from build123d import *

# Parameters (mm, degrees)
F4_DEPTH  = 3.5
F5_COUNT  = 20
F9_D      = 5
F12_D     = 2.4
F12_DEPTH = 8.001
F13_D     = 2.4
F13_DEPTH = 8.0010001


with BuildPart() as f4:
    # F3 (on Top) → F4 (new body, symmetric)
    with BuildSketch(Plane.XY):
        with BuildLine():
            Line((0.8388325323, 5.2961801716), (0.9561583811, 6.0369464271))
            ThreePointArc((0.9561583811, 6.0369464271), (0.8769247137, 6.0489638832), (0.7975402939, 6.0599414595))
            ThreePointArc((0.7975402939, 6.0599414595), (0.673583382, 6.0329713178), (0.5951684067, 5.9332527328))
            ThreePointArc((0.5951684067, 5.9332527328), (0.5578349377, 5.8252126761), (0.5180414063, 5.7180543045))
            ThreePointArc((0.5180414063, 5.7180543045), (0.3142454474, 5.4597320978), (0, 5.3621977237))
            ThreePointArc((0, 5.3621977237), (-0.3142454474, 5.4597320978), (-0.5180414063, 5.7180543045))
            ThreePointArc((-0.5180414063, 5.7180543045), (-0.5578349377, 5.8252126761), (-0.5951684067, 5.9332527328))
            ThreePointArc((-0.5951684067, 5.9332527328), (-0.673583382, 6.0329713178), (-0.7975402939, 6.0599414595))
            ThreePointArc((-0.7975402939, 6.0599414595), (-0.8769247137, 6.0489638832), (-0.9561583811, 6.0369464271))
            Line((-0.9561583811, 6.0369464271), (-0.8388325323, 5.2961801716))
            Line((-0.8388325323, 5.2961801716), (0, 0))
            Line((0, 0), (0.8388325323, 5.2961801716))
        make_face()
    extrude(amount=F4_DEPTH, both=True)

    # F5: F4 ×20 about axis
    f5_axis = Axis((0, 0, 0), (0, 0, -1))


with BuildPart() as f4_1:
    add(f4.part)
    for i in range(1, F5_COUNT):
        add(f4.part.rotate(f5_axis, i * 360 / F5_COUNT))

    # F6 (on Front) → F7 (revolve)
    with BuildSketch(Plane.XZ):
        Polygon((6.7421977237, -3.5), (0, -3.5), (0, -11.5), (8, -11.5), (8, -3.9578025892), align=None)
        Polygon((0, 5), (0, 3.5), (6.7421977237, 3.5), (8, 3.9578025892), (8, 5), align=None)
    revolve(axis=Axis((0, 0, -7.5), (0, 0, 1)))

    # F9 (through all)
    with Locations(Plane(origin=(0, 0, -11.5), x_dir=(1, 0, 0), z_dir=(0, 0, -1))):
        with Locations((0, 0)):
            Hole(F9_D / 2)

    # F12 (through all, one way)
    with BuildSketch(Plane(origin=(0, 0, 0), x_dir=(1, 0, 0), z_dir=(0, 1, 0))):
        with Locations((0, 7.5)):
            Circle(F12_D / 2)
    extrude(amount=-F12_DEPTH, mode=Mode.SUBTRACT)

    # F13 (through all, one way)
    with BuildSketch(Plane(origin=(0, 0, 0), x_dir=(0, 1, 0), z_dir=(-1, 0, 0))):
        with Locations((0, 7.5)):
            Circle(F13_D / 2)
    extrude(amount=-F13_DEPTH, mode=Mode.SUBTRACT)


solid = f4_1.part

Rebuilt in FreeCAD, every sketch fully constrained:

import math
import FreeCAD as App
import Part
import Sketcher
Q = App.Units.Quantity


def add_polygon(sketch, points):
    """Adds a closed chain of lines whose ends are joined by coincident constraints."""
    first, n = sketch.GeometryCount, len(points)
    for a, b in zip(points, points[1:] + points[:1]):
        sketch.addGeometry(Part.LineSegment(App.Vector(*a, 0), App.Vector(*b, 0)), False)
    for i in range(n):
        sketch.addConstraint(Sketcher.Constraint("Coincident", first + i, 2, first + (i + 1) % n, 1))

doc = App.newDocument("Part")
body = doc.addObject("PartDesign::Body", "Body")

sketch1 = body.newObject("Sketcher::SketchObject", "Sketch")
sketch1.AttachmentSupport = (doc.getObject("XY_Plane"), [""])
sketch1.MapMode = "FlatFace"
sketch1.addGeometry([
    Part.LineSegment(App.Vector(0.84, 5.3, 0), App.Vector(0.96, 6.04, 0)),
    Part.ArcOfCircle(Part.Circle(App.Vector(0, 0, 0), App.Vector(0, 0, 1), 6.11), math.radians(81), math.radians(82.5)),
    Part.ArcOfCircle(Part.Circle(App.Vector(0.77, 5.87, 0), App.Vector(0, 0, 1), 0.19), math.radians(83), math.radians(162)),
    Part.ArcOfCircle(Part.Circle(App.Vector(-4.15, 7.51, 0), App.Vector(0, 0, 1), 5), math.radians(-21.03), math.radians(-18.41)),
    Part.ArcOfCircle(Part.Circle(App.Vector(0, 5.92, 0), App.Vector(0, 0, 1), 0.56), math.radians(-90), math.radians(-21)),
    Part.ArcOfCircle(Part.Circle(App.Vector(0, 5.92, 0), App.Vector(0, 0, 1), 0.56), math.radians(-159), math.radians(-90)),
    Part.ArcOfCircle(Part.Circle(App.Vector(4.15, 7.51, 0), App.Vector(0, 0, 1), 5), math.radians(-161.59), math.radians(-158.97)),
    Part.ArcOfCircle(Part.Circle(App.Vector(-0.77, 5.87, 0), App.Vector(0, 0, 1), 0.19), math.radians(18), math.radians(97)),
    Part.ArcOfCircle(Part.Circle(App.Vector(0, 0, 0), App.Vector(0, 0, 1), 6.11), math.radians(97.5), math.radians(99)),
    Part.LineSegment(App.Vector(-0.96, 6.04, 0), App.Vector(-0.84, 5.3, 0)),
    Part.LineSegment(App.Vector(-0.84, 5.3, 0), App.Vector(0, 0, 0)),
    Part.LineSegment(App.Vector(0, 0, 0), App.Vector(0.84, 5.3, 0)),
], False)
sketch1.addConstraint([
    Sketcher.Constraint("Coincident", 0, 2, 1, 1),
    Sketcher.Constraint("Tangent", 1, 2, 2, 1),
    Sketcher.Constraint("Tangent", 2, 2, 3, 2),
    Sketcher.Constraint("Tangent", 3, 1, 4, 2),
    Sketcher.Constraint("Tangent", 4, 1, 5, 2),
    Sketcher.Constraint("Tangent", 5, 1, 6, 2),
    Sketcher.Constraint("Tangent", 6, 1, 7, 1),
    Sketcher.Constraint("Tangent", 7, 2, 8, 1),
    Sketcher.Constraint("Coincident", 8, 2, 9, 1),
    Sketcher.Constraint("Coincident", 9, 2, 10, 1),
    Sketcher.Constraint("Coincident", 10, 2, 11, 1),
    Sketcher.Constraint("Coincident", 11, 2, 0, 1),
    Sketcher.Constraint("Coincident", 1, 3, -1, 1),
    Sketcher.Constraint("Coincident", 8, 3, -1, 1),
    Sketcher.Constraint("Coincident", 10, 2, -1, 1),
    Sketcher.Constraint("Equal", 4, 5),
    Sketcher.Constraint("Equal", 3, 6),
    Sketcher.Constraint("Equal", 2, 7),
    Sketcher.Constraint("Equal", 1, 8),
    Sketcher.Constraint("Symmetric", 3, 3, 6, 3, -2),
    Sketcher.Constraint("Symmetric", 9, 2, 11, 2, -2),
    Sketcher.Constraint("PointOnObject", 4, 1, -2),
    Sketcher.Constraint("Parallel", 9, 10),
    Sketcher.Constraint("Parallel", 0, 11),
    Sketcher.Constraint("Radius", 3, Q("5 mm")),
    Sketcher.Constraint("Angle", 0, Q("81 deg")),
    Sketcher.Constraint("Radius", 4, Q("0.555 mm")),
    Sketcher.Constraint("Radius", 2, Q("0.1875 mm")),
    Sketcher.Constraint("Distance", 0, Q("0.75 mm")),
    Sketcher.Constraint("DistanceX", 3, 3, -1, 1, Q("4.148998 mm")),
    Sketcher.Constraint("Radius", 1, Q("6.112197 mm")),
    Sketcher.Constraint("DistanceY", 2, 3, 0, 2, Q("0.162902 mm")),
])
pad1 = body.newObject("PartDesign::Pad", "Pad")
pad1.Profile = sketch1
pad1.Length = 7
pad1.Midplane = True
body2 = doc.addObject("PartDesign::Body", "Body001")
doc.recompute()

body2.BaseFeature = body
doc.recompute()

body3 = doc.addObject("PartDesign::Body", "Body002")
body3.BaseFeature = body
body3.Placement = App.Placement(App.Vector(0, 0, 0), App.Rotation(App.Vector(0, 0, -1), 18))
boolean = body2.newObject("PartDesign::Boolean", "Boolean")
boolean.Type = "Fuse"
boolean.addObjects([body3])
doc.recompute()

body4 = doc.addObject("PartDesign::Body", "Body003")
body4.BaseFeature = body
body4.Placement = App.Placement(App.Vector(0, 0, 0), App.Rotation(App.Vector(0, 0, -1), 36))
boolean2 = body2.newObject("PartDesign::Boolean", "Boolean001")
boolean2.Type = "Fuse"
boolean2.addObjects([body4])
doc.recompute()

body5 = doc.addObject("PartDesign::Body", "Body004")
body5.BaseFeature = body
body5.Placement = App.Placement(App.Vector(0, 0, 0), App.Rotation(App.Vector(0, 0, -1), 54))
boolean3 = body2.newObject("PartDesign::Boolean", "Boolean002")
boolean3.Type = "Fuse"
boolean3.addObjects([body5])
doc.recompute()

body6 = doc.addObject("PartDesign::Body", "Body005")
body6.BaseFeature = body
body6.Placement = App.Placement(App.Vector(0, 0, 0), App.Rotation(App.Vector(0, 0, -1), 72))
boolean4 = body2.newObject("PartDesign::Boolean", "Boolean003")
boolean4.Type = "Fuse"
boolean4.addObjects([body6])
doc.recompute()

body7 = doc.addObject("PartDesign::Body", "Body006")
body7.BaseFeature = body
body7.Placement = App.Placement(App.Vector(0, 0, 0), App.Rotation(App.Vector(0, 0, -1), 90))
boolean5 = body2.newObject("PartDesign::Boolean", "Boolean004")
boolean5.Type = "Fuse"
boolean5.addObjects([body7])
doc.recompute()

body8 = doc.addObject("PartDesign::Body", "Body007")
body8.BaseFeature = body
body8.Placement = App.Placement(App.Vector(0, 0, 0), App.Rotation(App.Vector(0, 0, -1), 108))
boolean6 = body2.newObject("PartDesign::Boolean", "Boolean005")
boolean6.Type = "Fuse"
boolean6.addObjects([body8])
doc.recompute()

body9 = doc.addObject("PartDesign::Body", "Body008")
body9.BaseFeature = body
body9.Placement = App.Placement(App.Vector(0, 0, 0), App.Rotation(App.Vector(0, 0, -1), 126))
boolean7 = body2.newObject("PartDesign::Boolean", "Boolean006")
boolean7.Type = "Fuse"
boolean7.addObjects([body9])
doc.recompute()

body10 = doc.addObject("PartDesign::Body", "Body009")
body10.BaseFeature = body
body10.Placement = App.Placement(App.Vector(0, 0, 0), App.Rotation(App.Vector(0, 0, -1), 144))
boolean8 = body2.newObject("PartDesign::Boolean", "Boolean007")
boolean8.Type = "Fuse"
boolean8.addObjects([body10])
doc.recompute()

body11 = doc.addObject("PartDesign::Body", "Body010")
body11.BaseFeature = body
body11.Placement = App.Placement(App.Vector(0, 0, 0), App.Rotation(App.Vector(0, 0, -1), 162))
boolean9 = body2.newObject("PartDesign::Boolean", "Boolean008")
boolean9.Type = "Fuse"
boolean9.addObjects([body11])
doc.recompute()

body12 = doc.addObject("PartDesign::Body", "Body011")
body12.BaseFeature = body
body12.Placement = App.Placement(App.Vector(0, 0, 0), App.Rotation(App.Vector(0, 0, -1), 180))
boolean10 = body2.newObject("PartDesign::Boolean", "Boolean009")
boolean10.Type = "Fuse"
boolean10.addObjects([body12])
doc.recompute()

body13 = doc.addObject("PartDesign::Body", "Body012")
body13.BaseFeature = body
body13.Placement = App.Placement(App.Vector(0, 0, 0), App.Rotation(App.Vector(0, 0, -1), 198))
boolean11 = body2.newObject("PartDesign::Boolean", "Boolean010")
boolean11.Type = "Fuse"
boolean11.addObjects([body13])
doc.recompute()

body14 = doc.addObject("PartDesign::Body", "Body013")
body14.BaseFeature = body
body14.Placement = App.Placement(App.Vector(0, 0, 0), App.Rotation(App.Vector(0, 0, -1), 216))
boolean12 = body2.newObject("PartDesign::Boolean", "Boolean011")
boolean12.Type = "Fuse"
boolean12.addObjects([body14])
doc.recompute()

body15 = doc.addObject("PartDesign::Body", "Body014")
body15.BaseFeature = body
body15.Placement = App.Placement(App.Vector(0, 0, 0), App.Rotation(App.Vector(0, 0, -1), 234))
boolean13 = body2.newObject("PartDesign::Boolean", "Boolean012")
boolean13.Type = "Fuse"
boolean13.addObjects([body15])
doc.recompute()

body16 = doc.addObject("PartDesign::Body", "Body015")
body16.BaseFeature = body
body16.Placement = App.Placement(App.Vector(0, 0, 0), App.Rotation(App.Vector(0, 0, -1), 252))
boolean14 = body2.newObject("PartDesign::Boolean", "Boolean013")
boolean14.Type = "Fuse"
boolean14.addObjects([body16])
doc.recompute()

body17 = doc.addObject("PartDesign::Body", "Body016")
body17.BaseFeature = body
body17.Placement = App.Placement(App.Vector(0, 0, 0), App.Rotation(App.Vector(0, 0, -1), 270))
boolean15 = body2.newObject("PartDesign::Boolean", "Boolean014")
boolean15.Type = "Fuse"
boolean15.addObjects([body17])
doc.recompute()

body18 = doc.addObject("PartDesign::Body", "Body017")
body18.BaseFeature = body
body18.Placement = App.Placement(App.Vector(0, 0, 0), App.Rotation(App.Vector(0, 0, -1), 288))
boolean16 = body2.newObject("PartDesign::Boolean", "Boolean015")
boolean16.Type = "Fuse"
boolean16.addObjects([body18])
doc.recompute()

body19 = doc.addObject("PartDesign::Body", "Body018")
body19.BaseFeature = body
body19.Placement = App.Placement(App.Vector(0, 0, 0), App.Rotation(App.Vector(0, 0, -1), 306))
boolean17 = body2.newObject("PartDesign::Boolean", "Boolean016")
boolean17.Type = "Fuse"
boolean17.addObjects([body19])
doc.recompute()

body20 = doc.addObject("PartDesign::Body", "Body019")
body20.BaseFeature = body
body20.Placement = App.Placement(App.Vector(0, 0, 0), App.Rotation(App.Vector(0, 0, -1), 324))
boolean18 = body2.newObject("PartDesign::Boolean", "Boolean017")
boolean18.Type = "Fuse"
boolean18.addObjects([body20])
doc.recompute()

body.Placement = App.Placement(App.Vector(0, 0, 0), App.Rotation(App.Vector(0, 0, -1), 342))
boolean19 = body2.newObject("PartDesign::Boolean", "Boolean018")
boolean19.Type = "Fuse"
boolean19.addObjects([body])

sketch2 = body2.newObject("Sketcher::SketchObject", "Sketch001")
sketch2.AttachmentSupport = (doc.getObject("XZ_Plane001"), [""])
sketch2.MapMode = "FlatFace"
add_polygon(sketch2, [(6.7, -3.5), (0, -3.5), (0, -11.5), (8, -11.5), (8, -4)])
add_polygon(sketch2, [(0, 5), (0, 3.5), (6.7, 3.5), (8, 4), (8, 5)])
sketch2.addConstraint([
    Sketcher.Constraint("Horizontal", 0),
    Sketcher.Constraint("Vertical", 1),
    Sketcher.Constraint("Horizontal", 2),
    Sketcher.Constraint("Vertical", 3),
    Sketcher.Constraint("Vertical", 5),
    Sketcher.Constraint("Horizontal", 6),
    Sketcher.Constraint("Vertical", 8),
    Sketcher.Constraint("Horizontal", 9),
    Sketcher.Constraint("Symmetric", 0, 2, 5, 2, -1, 1),
    Sketcher.Constraint("Symmetric", 3, 2, 7, 2, -1),
    Sketcher.Constraint("PointOnObject", 0, 2, -2),
    Sketcher.Constraint("Vertical", 4, 2, 6, 2),
    Sketcher.Constraint("Equal", 9, 1),
    Sketcher.Constraint("DistanceX", 2, 1, 2, 2, Q("8 mm")),
    Sketcher.Constraint("Angle", 4, Q("160 deg")),
    Sketcher.Constraint("DistanceY", 5, 2, 5, 1, Q("1.5 mm")),
    Sketcher.Constraint("DistanceY", -1, 1, 8, 2, Q("5 mm")),
    Sketcher.Constraint("DistanceX", 0, 2, 0, 1, Q("6.742198 mm")),
])
revolution = body2.newObject("PartDesign::Revolution", "Revolution")
revolution.Profile = sketch2
revolution.ReferenceAxis = (sketch2, ["V_Axis"])
revolution.Angle = 360

sketch3 = body2.newObject("Sketcher::SketchObject", "Sketch002")
sketch3.AttachmentSupport = (doc.getObject("XY_Plane001"), [""])
sketch3.MapMode = "FlatFace"
sketch3.AttachmentOffset = App.Placement(App.Vector(0, 0, -11.5), App.Rotation())
sketch3.addGeometry(Part.Circle(App.Vector(0, 0, 0), App.Vector(0, 0, 1), 2.5), False)
sketch3.addConstraint([
    Sketcher.Constraint("Coincident", 0, 3, -1, 1),
    Sketcher.Constraint("Diameter", 0, Q("5 mm")),
])
doc.recompute()
hole = body2.newObject("PartDesign::Hole", "Hole")
hole.Profile = sketch3
hole.ThreadType = "None"
hole.Diameter = 5
hole.DepthType = "ThroughAll"
hole.Reversed = True

sketch4 = body2.newObject("Sketcher::SketchObject", "Sketch003")
sketch4.AttachmentSupport = (doc.getObject("XZ_Plane001"), [""])
sketch4.MapMode = "FlatFace"
sketch4.addGeometry(Part.Circle(App.Vector(0, -7.5, 0), App.Vector(0, 0, 1), 1.2), False)
sketch4.addConstraint([
    Sketcher.Constraint("PointOnObject", 0, 3, -2),
    Sketcher.Constraint("Diameter", 0, Q("2.4 mm")),
    Sketcher.Constraint("DistanceY", 0, 3, -1, 1, Q("7.5 mm")),
])
pocket1 = body2.newObject("PartDesign::Pocket", "Pocket")
pocket1.Profile = sketch4
pocket1.Type = "ThroughAll"
pocket1.Reversed = True

sketch5 = body2.newObject("Sketcher::SketchObject", "Sketch004")
sketch5.AttachmentSupport = (doc.getObject("YZ_Plane001"), [""])
sketch5.MapMode = "FlatFace"
sketch5.addGeometry(Part.Circle(App.Vector(0, -7.5, 0), App.Vector(0, 0, 1), 1.2), False)
sketch5.addConstraint([
    Sketcher.Constraint("PointOnObject", 0, 3, -2),
    Sketcher.Constraint("Diameter", 0, Q("2.4 mm")),
    Sketcher.Constraint("DistanceY", 0, 3, -1, 1, Q("7.5 mm")),
])
pocket2 = body2.newObject("PartDesign::Pocket", "Pocket001")
pocket2.Profile = sketch5
pocket2.Type = "ThroughAll"
pocket2.Reversed = True

doc.recompute()
